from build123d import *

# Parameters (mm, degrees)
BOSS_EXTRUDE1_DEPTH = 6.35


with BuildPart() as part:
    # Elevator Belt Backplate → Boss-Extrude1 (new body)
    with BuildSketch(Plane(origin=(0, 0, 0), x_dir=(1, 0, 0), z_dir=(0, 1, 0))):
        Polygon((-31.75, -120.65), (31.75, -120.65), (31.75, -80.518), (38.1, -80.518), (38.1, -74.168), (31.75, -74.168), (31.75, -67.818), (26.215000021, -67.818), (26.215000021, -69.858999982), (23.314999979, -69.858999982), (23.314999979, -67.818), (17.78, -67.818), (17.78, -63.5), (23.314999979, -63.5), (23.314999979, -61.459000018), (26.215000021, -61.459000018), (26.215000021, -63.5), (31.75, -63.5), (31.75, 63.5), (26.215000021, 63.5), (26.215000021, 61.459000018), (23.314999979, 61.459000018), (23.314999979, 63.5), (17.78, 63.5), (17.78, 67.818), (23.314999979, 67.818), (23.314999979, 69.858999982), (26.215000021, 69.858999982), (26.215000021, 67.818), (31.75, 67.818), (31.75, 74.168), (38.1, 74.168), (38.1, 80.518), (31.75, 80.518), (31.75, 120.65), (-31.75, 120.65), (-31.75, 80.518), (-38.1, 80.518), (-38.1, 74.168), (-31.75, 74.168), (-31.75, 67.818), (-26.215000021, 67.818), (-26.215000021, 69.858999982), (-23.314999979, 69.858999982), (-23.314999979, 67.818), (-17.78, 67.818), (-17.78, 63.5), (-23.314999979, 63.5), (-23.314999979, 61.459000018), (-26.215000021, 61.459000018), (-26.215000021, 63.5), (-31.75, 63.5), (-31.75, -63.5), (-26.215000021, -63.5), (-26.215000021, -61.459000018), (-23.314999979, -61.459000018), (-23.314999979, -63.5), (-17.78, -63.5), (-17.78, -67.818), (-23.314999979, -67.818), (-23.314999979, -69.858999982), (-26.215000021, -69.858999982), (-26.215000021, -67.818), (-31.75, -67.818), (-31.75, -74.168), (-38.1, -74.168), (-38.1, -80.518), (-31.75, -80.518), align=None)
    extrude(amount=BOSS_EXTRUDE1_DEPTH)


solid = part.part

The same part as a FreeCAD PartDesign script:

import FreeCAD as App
import Part
import Sketcher
from FreeCAD import Vector
Q = App.Units.Quantity

doc = App.newDocument("Part")
params = doc.addObject("Spreadsheet::Sheet", "Params")
for row, (alias, value) in enumerate([
    ("sketch1_height", "5 in"),
    ("sketch1_width", "2.5 in"),
    ("sketch1_width2", "0.25 in"),
    ("sketch1_height2", "1.58 in"),
    ("sketch1_height3", "0.17 in"),
    ("pad1_length", "0.25 in"),
], start=1):
    params.set(f"A{row}", alias)
    params.set(f"B{row}", "=" + value)
    params.setAlias(f"B{row}", alias)

body = doc.addObject("PartDesign::Body", "Body")

# Sketch on XZ plane
sketch1 = doc.addObject("Sketcher::SketchObject", "Sketch")
body.addObject(sketch1)
sketch1.AttachmentSupport = (doc.XZ_Plane, [""])
sketch1.MapMode = "FlatFace"
sketch1.addGeometry([
    Part.LineSegment(Vector(-31.8, 120.7, 0), Vector(31.8, 120.7, 0)),  # 0
    Part.LineSegment(Vector(31.8, 120.7, 0), Vector(31.8, 80.5, 0)),  # 1
    Part.LineSegment(Vector(31.8, 80.5, 0), Vector(38.1, 80.5, 0)),  # 2
    Part.LineSegment(Vector(38.1, 80.5, 0), Vector(38.1, 74.2, 0)),  # 3
    Part.LineSegment(Vector(38.1, 74.2, 0), Vector(31.8, 74.2, 0)),  # 4
    Part.LineSegment(Vector(31.8, 74.2, 0), Vector(31.8, 67.8, 0)),  # 5
    Part.LineSegment(Vector(31.8, 67.8, 0), Vector(26.2, 67.8, 0)),  # 6
    Part.LineSegment(Vector(26.2, 67.8, 0), Vector(26.2, 69.9, 0)),  # 7
    Part.LineSegment(Vector(26.2, 69.9, 0), Vector(23.3, 69.9, 0)),  # 8
    Part.LineSegment(Vector(23.3, 69.9, 0), Vector(23.3, 67.8, 0)),  # 9
    Part.LineSegment(Vector(23.3, 67.8, 0), Vector(17.8, 67.8, 0)),  # 10
    Part.LineSegment(Vector(17.8, 67.8, 0), Vector(17.8, 63.5, 0)),  # 11
    Part.LineSegment(Vector(17.8, 63.5, 0), Vector(23.3, 63.5, 0)),  # 12
    Part.LineSegment(Vector(23.3, 63.5, 0), Vector(23.3, 61.5, 0)),  # 13
    Part.LineSegment(Vector(23.3, 61.5, 0), Vector(26.2, 61.5, 0)),  # 14
    Part.LineSegment(Vector(26.2, 61.5, 0), Vector(26.2, 63.5, 0)),  # 15
    Part.LineSegment(Vector(26.2, 63.5, 0), Vector(31.8, 63.5, 0)),  # 16
    Part.LineSegment(Vector(31.8, 63.5, 0), Vector(31.8, -63.5, 0)),  # 17
    Part.LineSegment(Vector(31.8, -63.5, 0), Vector(26.2, -63.5, 0)),  # 18
    Part.LineSegment(Vector(26.2, -63.5, 0), Vector(26.2, -61.5, 0)),  # 19
    Part.LineSegment(Vector(26.2, -61.5, 0), Vector(23.3, -61.5, 0)),  # 20
    Part.LineSegment(Vector(23.3, -61.5, 0), Vector(23.3, -63.5, 0)),  # 21
    Part.LineSegment(Vector(23.3, -63.5, 0), Vector(17.8, -63.5, 0)),  # 22
    Part.LineSegment(Vector(17.8, -63.5, 0), Vector(17.8, -67.8, 0)),  # 23
    Part.LineSegment(Vector(17.8, -67.8, 0), Vector(23.3, -67.8, 0)),  # 24
    Part.LineSegment(Vector(23.3, -67.8, 0), Vector(23.3, -69.9, 0)),  # 25
    Part.LineSegment(Vector(23.3, -69.9, 0), Vector(26.2, -69.9, 0)),  # 26
    Part.LineSegment(Vector(26.2, -69.9, 0), Vector(26.2, -67.8, 0)),  # 27
    Part.LineSegment(Vector(26.2, -67.8, 0), Vector(31.8, -67.8, 0)),  # 28
    Part.LineSegment(Vector(31.8, -67.8, 0), Vector(31.8, -74.2, 0)),  # 29
    Part.LineSegment(Vector(31.8, -74.2, 0), Vector(38.1, -74.2, 0)),  # 30
    Part.LineSegment(Vector(38.1, -74.2, 0), Vector(38.1, -80.5, 0)),  # 31
    Part.LineSegment(Vector(38.1, -80.5, 0), Vector(31.8, -80.5, 0)),  # 32
    Part.LineSegment(Vector(31.8, -80.5, 0), Vector(31.8, -120.7, 0)),  # 33
    Part.LineSegment(Vector(31.8, -120.7, 0), Vector(-31.8, -120.7, 0)),  # 34
    Part.LineSegment(Vector(-31.8, -120.7, 0), Vector(-31.8, -80.5, 0)),  # 35
    Part.LineSegment(Vector(-31.8, -80.5, 0), Vector(-38.1, -80.5, 0)),  # 36
    Part.LineSegment(Vector(-38.1, -80.5, 0), Vector(-38.1, -74.2, 0)),  # 37
    Part.LineSegment(Vector(-38.1, -74.2, 0), Vector(-31.8, -74.2, 0)),  # 38
    Part.LineSegment(Vector(-31.8, -74.2, 0), Vector(-31.8, -67.8, 0)),  # 39
    Part.LineSegment(Vector(-31.8, -67.8, 0), Vector(-26.2, -67.8, 0)),  # 40
    Part.LineSegment(Vector(-26.2, -67.8, 0), Vector(-26.2, -69.9, 0)),  # 41
    Part.LineSegment(Vector(-26.2, -69.9, 0), Vector(-23.3, -69.9, 0)),  # 42
    Part.LineSegment(Vector(-23.3, -69.9, 0), Vector(-23.3, -67.8, 0)),  # 43
    Part.LineSegment(Vector(-23.3, -67.8, 0), Vector(-17.8, -67.8, 0)),  # 44
    Part.LineSegment(Vector(-17.8, -67.8, 0), Vector(-17.8, -63.5, 0)),  # 45
    Part.LineSegment(Vector(-17.8, -63.5, 0), Vector(-23.3, -63.5, 0)),  # 46
    Part.LineSegment(Vector(-23.3, -63.5, 0), Vector(-23.3, -61.5, 0)),  # 47
    Part.LineSegment(Vector(-23.3, -61.5, 0), Vector(-26.2, -61.5, 0)),  # 48
    Part.LineSegment(Vector(-26.2, -61.5, 0), Vector(-26.2, -63.5, 0)),  # 49
    Part.LineSegment(Vector(-26.2, -63.5, 0), Vector(-31.8, -63.5, 0)),  # 50
    Part.LineSegment(Vector(-31.8, -63.5, 0), Vector(-31.8, 63.5, 0)),  # 51
    Part.LineSegment(Vector(-31.8, 63.5, 0), Vector(-26.2, 63.5, 0)),  # 52
    Part.LineSegment(Vector(-26.2, 63.5, 0), Vector(-26.2, 61.5, 0)),  # 53
    Part.LineSegment(Vector(-26.2, 61.5, 0), Vector(-23.3, 61.5, 0)),  # 54
    Part.LineSegment(Vector(-23.3, 61.5, 0), Vector(-23.3, 63.5, 0)),  # 55
    Part.LineSegment(Vector(-23.3, 63.5, 0), Vector(-17.8, 63.5, 0)),  # 56
    Part.LineSegment(Vector(-17.8, 63.5, 0), Vector(-17.8, 67.8, 0)),  # 57
    Part.LineSegment(Vector(-17.8, 67.8, 0), Vector(-23.3, 67.8, 0)),  # 58
    Part.LineSegment(Vector(-23.3, 67.8, 0), Vector(-23.3, 69.9, 0)),  # 59
    Part.LineSegment(Vector(-23.3, 69.9, 0), Vector(-26.2, 69.9, 0)),  # 60
    Part.LineSegment(Vector(-26.2, 69.9, 0), Vector(-26.2, 67.8, 0)),  # 61
    Part.LineSegment(Vector(-26.2, 67.8, 0), Vector(-31.8, 67.8, 0)),  # 62
    Part.LineSegment(Vector(-31.8, 67.8, 0), Vector(-31.8, 74.2, 0)),  # 63
    Part.LineSegment(Vector(-31.8, 74.2, 0), Vector(-38.1, 74.2, 0)),  # 64
    Part.LineSegment(Vector(-38.1, 74.2, 0), Vector(-38.1, 80.5, 0)),  # 65
    Part.LineSegment(Vector(-38.1, 80.5, 0), Vector(-31.8, 80.5, 0)),  # 66
    Part.LineSegment(Vector(-31.8, 80.5, 0), Vector(-31.8, 120.7, 0)),  # 67
], False)
sketch1.addConstraint([
    Sketcher.Constraint("Coincident", 0, 2, 1, 1),
    Sketcher.Constraint("Coincident", 1, 2, 2, 1),
    Sketcher.Constraint("Coincident", 2, 2, 3, 1),
    Sketcher.Constraint("Coincident", 3, 2, 4, 1),
    Sketcher.Constraint("Coincident", 4, 2, 5, 1),
    Sketcher.Constraint("Coincident", 5, 2, 6, 1),
    Sketcher.Constraint("Coincident", 6, 2, 7, 1),
    Sketcher.Constraint("Coincident", 7, 2, 8, 1),
    Sketcher.Constraint("Coincident", 8, 2, 9, 1),
    Sketcher.Constraint("Coincident", 9, 2, 10, 1),
    Sketcher.Constraint("Coincident", 10, 2, 11, 1),
    Sketcher.Constraint("Coincident", 11, 2, 12, 1),
    Sketcher.Constraint("Coincident", 12, 2, 13, 1),
    Sketcher.Constraint("Coincident", 13, 2, 14, 1),
    Sketcher.Constraint("Coincident", 14, 2, 15, 1),
    Sketcher.Constraint("Coincident", 15, 2, 16, 1),
    Sketcher.Constraint("Coincident", 16, 2, 17, 1),
    Sketcher.Constraint("Coincident", 17, 2, 18, 1),
    Sketcher.Constraint("Coincident", 18, 2, 19, 1),
    Sketcher.Constraint("Coincident", 19, 2, 20, 1),
    Sketcher.Constraint("Coincident", 20, 2, 21, 1),
    Sketcher.Constraint("Coincident", 21, 2, 22, 1),
    Sketcher.Constraint("Coincident", 22, 2, 23, 1),
    Sketcher.Constraint("Coincident", 23, 2, 24, 1),
    Sketcher.Constraint("Coincident", 24, 2, 25, 1),
    Sketcher.Constraint("Coincident", 25, 2, 26, 1),
    Sketcher.Constraint("Coincident", 26, 2, 27, 1),
    Sketcher.Constraint("Coincident", 27, 2, 28, 1),
    Sketcher.Constraint("Coincident", 28, 2, 29, 1),
    Sketcher.Constraint("Coincident", 29, 2, 30, 1),
    Sketcher.Constraint("Coincident", 30, 2, 31, 1),
    Sketcher.Constraint("Coincident", 31, 2, 32, 1),
    Sketcher.Constraint("Coincident", 32, 2, 33, 1),
    Sketcher.Constraint("Coincident", 33, 2, 34, 1),
    Sketcher.Constraint("Coincident", 34, 2, 35, 1),
    Sketcher.Constraint("Coincident", 35, 2, 36, 1),
    Sketcher.Constraint("Coincident", 36, 2, 37, 1),
    Sketcher.Constraint("Coincident", 37, 2, 38, 1),
    Sketcher.Constraint("Coincident", 38, 2, 39, 1),
    Sketcher.Constraint("Coincident", 39, 2, 40, 1),
    Sketcher.Constraint("Coincident", 40, 2, 41, 1),
    Sketcher.Constraint("Coincident", 41, 2, 42, 1),
    Sketcher.Constraint("Coincident", 42, 2, 43, 1),
    Sketcher.Constraint("Coincident", 43, 2, 44, 1),
    Sketcher.Constraint("Coincident", 44, 2, 45, 1),
    Sketcher.Constraint("Coincident", 45, 2, 46, 1),
    Sketcher.Constraint("Coincident", 46, 2, 47, 1),
    Sketcher.Constraint("Coincident", 47, 2, 48, 1),
    Sketcher.Constraint("Coincident", 48, 2, 49, 1),
    Sketcher.Constraint("Coincident", 49, 2, 50, 1),
    Sketcher.Constraint("Coincident", 50, 2, 51, 1),
    Sketcher.Constraint("Coincident", 51, 2, 52, 1),
    Sketcher.Constraint("Coincident", 52, 2, 53, 1),
    Sketcher.Constraint("Coincident", 53, 2, 54, 1),
    Sketcher.Constraint("Coincident", 54, 2, 55, 1),
    Sketcher.Constraint("Coincident", 55, 2, 56, 1),
    Sketcher.Constraint("Coincident", 56, 2, 57, 1),
    Sketcher.Constraint("Coincident", 57, 2, 58, 1),
    Sketcher.Constraint("Coincident", 58, 2, 59, 1),
    Sketcher.Constraint("Coincident", 59, 2, 60, 1),
    Sketcher.Constraint("Coincident", 60, 2, 61, 1),
    Sketcher.Constraint("Coincident", 61, 2, 62, 1),
    Sketcher.Constraint("Coincident", 62, 2, 63, 1),
    Sketcher.Constraint("Coincident", 63, 2, 64, 1),
    Sketcher.Constraint("Coincident", 64, 2, 65, 1),
    Sketcher.Constraint("Coincident", 65, 2, 66, 1),
    Sketcher.Constraint("Coincident", 66, 2, 67, 1),
    Sketcher.Constraint("Coincident", 67, 2, 0, 1),
    Sketcher.Constraint("Horizontal", 0),
    Sketcher.Constraint("Vertical", 1),
    Sketcher.Constraint("Horizontal", 2),
    Sketcher.Constraint("Vertical", 3),
    Sketcher.Constraint("Horizontal", 4),
    Sketcher.Constraint("Vertical", 5),
    Sketcher.Constraint("Horizontal", 6),
    Sketcher.Constraint("Vertical", 7),
    Sketcher.Constraint("Horizontal", 8),
    Sketcher.Constraint("Vertical", 9),
    Sketcher.Constraint("Horizontal", 10),
    Sketcher.Constraint("Vertical", 11),
    Sketcher.Constraint("Horizontal", 12),
    Sketcher.Constraint("Vertical", 13),
    Sketcher.Constraint("Horizontal", 14),
    Sketcher.Constraint("Vertical", 15),
    Sketcher.Constraint("Horizontal", 16),
    Sketcher.Constraint("Vertical", 17),
    Sketcher.Constraint("Horizontal", 18),
    Sketcher.Constraint("Vertical", 19),
    Sketcher.Constraint("Horizontal", 20),
    Sketcher.Constraint("Vertical", 21),
    Sketcher.Constraint("Horizontal", 22),
    Sketcher.Constraint("Vertical", 23),
    Sketcher.Constraint("Horizontal", 24),
    Sketcher.Constraint("Vertical", 25),
    Sketcher.Constraint("Horizontal", 26),
    Sketcher.Constraint("Vertical", 27),
    Sketcher.Constraint("Horizontal", 28),
    Sketcher.Constraint("Vertical", 29),
    Sketcher.Constraint("Horizontal", 30),
    Sketcher.Constraint("Vertical", 31),
    Sketcher.Constraint("Horizontal", 32),
    Sketcher.Constraint("Vertical", 33),
    Sketcher.Constraint("Horizontal", 34),
    Sketcher.Constraint("Vertical", 35),
    Sketcher.Constraint("Horizontal", 36),
    Sketcher.Constraint("Vertical", 37),
    Sketcher.Constraint("Horizontal", 38),
    Sketcher.Constraint("Vertical", 39),
    Sketcher.Constraint("Horizontal", 40),
    Sketcher.Constraint("Vertical", 41),
    Sketcher.Constraint("Horizontal", 42),
    Sketcher.Constraint("Vertical", 43),
    Sketcher.Constraint("Horizontal", 44),
    Sketcher.Constraint("Vertical", 45),
    Sketcher.Constraint("Horizontal", 46),
    Sketcher.Constraint("Vertical", 47),
    Sketcher.Constraint("Horizontal", 48),
    Sketcher.Constraint("Vertical", 49),
    Sketcher.Constraint("Horizontal", 50),
    Sketcher.Constraint("Vertical", 51),
    Sketcher.Constraint("Horizontal", 52),
    Sketcher.Constraint("Vertical", 53),
    Sketcher.Constraint("Horizontal", 54),
    Sketcher.Constraint("Vertical", 55),
    Sketcher.Constraint("Horizontal", 56),
    Sketcher.Constraint("Vertical", 57),
    Sketcher.Constraint("Horizontal", 58),
    Sketcher.Constraint("Vertical", 59),
    Sketcher.Constraint("Horizontal", 60),
    Sketcher.Constraint("Vertical", 61),
    Sketcher.Constraint("Horizontal", 62),
    Sketcher.Constraint("Vertical", 63),
    Sketcher.Constraint("Horizontal", 64),
    Sketcher.Constraint("Vertical", 65),
    Sketcher.Constraint("Horizontal", 66),
    Sketcher.Constraint("Vertical", 67),
    Sketcher.Constraint("Symmetric", 0, 2, 34, 2, -1, 1),
    Sketcher.Constraint("Symmetric", 2, 2, 36, 2, -1, 1),
    Sketcher.Constraint("Symmetric", 4, 2, 38, 2, -1, 1),
    Sketcher.Constraint("Symmetric", 6, 2, 40, 2, -1, 1),
    Sketcher.Constraint("Symmetric", 8, 2, 42, 2, -1, 1),
    Sketcher.Constraint("Symmetric", 10, 2, 44, 2, -1, 1),
    Sketcher.Constraint("Symmetric", 12, 2, 46, 2, -1, 1),
    Sketcher.Constraint("Symmetric", 14, 2, 48, 2, -1, 1),
    Sketcher.Constraint("Symmetric", 16, 2, 50, 2, -1, 1),
    Sketcher.Constraint("Symmetric", 18, 2, 52, 2, -1, 1),
    Sketcher.Constraint("Symmetric", 20, 2, 54, 2, -1, 1),
    Sketcher.Constraint("Symmetric", 22, 2, 56, 2, -1, 1),
    Sketcher.Constraint("Symmetric", 24, 2, 58, 2, -1, 1),
    Sketcher.Constraint("Symmetric", 26, 2, 60, 2, -1, 1),
    Sketcher.Constraint("Symmetric", 28, 2, 62, 2, -1, 1),
    Sketcher.Constraint("Symmetric", 30, 2, 64, 2, -1, 1),
    Sketcher.Constraint("Symmetric", 32, 2, 66, 2, -1, 1),
    Sketcher.Constraint("Symmetric", 32, 2, 35, 2, -2),
    Sketcher.Constraint("Symmetric", 30, 2, 37, 2, -2),
    Sketcher.Constraint("Symmetric", 28, 2, 39, 2, -2),
    Sketcher.Constraint("Symmetric", 26, 2, 41, 2, -2),
    Sketcher.Constraint("Symmetric", 24, 2, 43, 2, -2),
    Sketcher.Constraint("Symmetric", 22, 2, 45, 2, -2),
    Sketcher.Constraint("Symmetric", 20, 2, 47, 2, -2),
    Sketcher.Constraint("Symmetric", 18, 2, 49, 2, -2),
    Sketcher.Constraint("Horizontal", 6, 2, 9, 2),
    Sketcher.Constraint("Horizontal", 12, 2, 15, 2),
    Sketcher.Constraint("Vertical", 1, 2, 4, 2),
    Sketcher.Constraint("Vertical", 9, 2, 12, 2),
    Sketcher.Constraint("Vertical", 7, 2, 14, 2),
    Sketcher.Constraint("Vertical", 5, 2, 16, 2),
    Sketcher.Constraint("Equal", 6, 10),
    Sketcher.Constraint("Equal", 66, 3),
    Sketcher.Constraint("Equal", 3, 5),
    Sketcher.Constraint("Equal", 9, 13),
    Sketcher.Constraint("DistanceY", 17, 2, 17, 1, Q("5 in")),
    Sketcher.Constraint("DistanceX", 0, 1, 0, 2, Q("2.5 in")),
    Sketcher.Constraint("DistanceX", 2, 1, 2, 2, Q("0.25 in")),
    Sketcher.Constraint("DistanceY", 1, 2, 1, 1, Q("1.58 in")),
    Sketcher.Constraint("DistanceY", 11, 2, 11, 1, Q("0.17 in")),
    Sketcher.Constraint("DistanceX", -1, 1, 10, 2, Q("0.7 in")),
    Sketcher.Constraint("DistanceX", 6, 2, 6, 1, Q("5.535 mm")),
    Sketcher.Constraint("DistanceY", 7, 1, 7, 2, Q("2.041 mm")),
])
sketch1.setExpression("Constraints[171]", "Params.sketch1_height")
sketch1.setExpression("Constraints[172]", "Params.sketch1_width")
sketch1.setExpression("Constraints[173]", "Params.sketch1_width2")
sketch1.setExpression("Constraints[174]", "Params.sketch1_height2")
sketch1.setExpression("Constraints[175]", "Params.sketch1_height3")
pad1 = doc.addObject("PartDesign::Pad", "Pad")
body.addObject(pad1)
pad1.Profile = sketch1
pad1.setExpression("Length", "Params.pad1_length")
pad1.Reversed = True

doc.recompute()
